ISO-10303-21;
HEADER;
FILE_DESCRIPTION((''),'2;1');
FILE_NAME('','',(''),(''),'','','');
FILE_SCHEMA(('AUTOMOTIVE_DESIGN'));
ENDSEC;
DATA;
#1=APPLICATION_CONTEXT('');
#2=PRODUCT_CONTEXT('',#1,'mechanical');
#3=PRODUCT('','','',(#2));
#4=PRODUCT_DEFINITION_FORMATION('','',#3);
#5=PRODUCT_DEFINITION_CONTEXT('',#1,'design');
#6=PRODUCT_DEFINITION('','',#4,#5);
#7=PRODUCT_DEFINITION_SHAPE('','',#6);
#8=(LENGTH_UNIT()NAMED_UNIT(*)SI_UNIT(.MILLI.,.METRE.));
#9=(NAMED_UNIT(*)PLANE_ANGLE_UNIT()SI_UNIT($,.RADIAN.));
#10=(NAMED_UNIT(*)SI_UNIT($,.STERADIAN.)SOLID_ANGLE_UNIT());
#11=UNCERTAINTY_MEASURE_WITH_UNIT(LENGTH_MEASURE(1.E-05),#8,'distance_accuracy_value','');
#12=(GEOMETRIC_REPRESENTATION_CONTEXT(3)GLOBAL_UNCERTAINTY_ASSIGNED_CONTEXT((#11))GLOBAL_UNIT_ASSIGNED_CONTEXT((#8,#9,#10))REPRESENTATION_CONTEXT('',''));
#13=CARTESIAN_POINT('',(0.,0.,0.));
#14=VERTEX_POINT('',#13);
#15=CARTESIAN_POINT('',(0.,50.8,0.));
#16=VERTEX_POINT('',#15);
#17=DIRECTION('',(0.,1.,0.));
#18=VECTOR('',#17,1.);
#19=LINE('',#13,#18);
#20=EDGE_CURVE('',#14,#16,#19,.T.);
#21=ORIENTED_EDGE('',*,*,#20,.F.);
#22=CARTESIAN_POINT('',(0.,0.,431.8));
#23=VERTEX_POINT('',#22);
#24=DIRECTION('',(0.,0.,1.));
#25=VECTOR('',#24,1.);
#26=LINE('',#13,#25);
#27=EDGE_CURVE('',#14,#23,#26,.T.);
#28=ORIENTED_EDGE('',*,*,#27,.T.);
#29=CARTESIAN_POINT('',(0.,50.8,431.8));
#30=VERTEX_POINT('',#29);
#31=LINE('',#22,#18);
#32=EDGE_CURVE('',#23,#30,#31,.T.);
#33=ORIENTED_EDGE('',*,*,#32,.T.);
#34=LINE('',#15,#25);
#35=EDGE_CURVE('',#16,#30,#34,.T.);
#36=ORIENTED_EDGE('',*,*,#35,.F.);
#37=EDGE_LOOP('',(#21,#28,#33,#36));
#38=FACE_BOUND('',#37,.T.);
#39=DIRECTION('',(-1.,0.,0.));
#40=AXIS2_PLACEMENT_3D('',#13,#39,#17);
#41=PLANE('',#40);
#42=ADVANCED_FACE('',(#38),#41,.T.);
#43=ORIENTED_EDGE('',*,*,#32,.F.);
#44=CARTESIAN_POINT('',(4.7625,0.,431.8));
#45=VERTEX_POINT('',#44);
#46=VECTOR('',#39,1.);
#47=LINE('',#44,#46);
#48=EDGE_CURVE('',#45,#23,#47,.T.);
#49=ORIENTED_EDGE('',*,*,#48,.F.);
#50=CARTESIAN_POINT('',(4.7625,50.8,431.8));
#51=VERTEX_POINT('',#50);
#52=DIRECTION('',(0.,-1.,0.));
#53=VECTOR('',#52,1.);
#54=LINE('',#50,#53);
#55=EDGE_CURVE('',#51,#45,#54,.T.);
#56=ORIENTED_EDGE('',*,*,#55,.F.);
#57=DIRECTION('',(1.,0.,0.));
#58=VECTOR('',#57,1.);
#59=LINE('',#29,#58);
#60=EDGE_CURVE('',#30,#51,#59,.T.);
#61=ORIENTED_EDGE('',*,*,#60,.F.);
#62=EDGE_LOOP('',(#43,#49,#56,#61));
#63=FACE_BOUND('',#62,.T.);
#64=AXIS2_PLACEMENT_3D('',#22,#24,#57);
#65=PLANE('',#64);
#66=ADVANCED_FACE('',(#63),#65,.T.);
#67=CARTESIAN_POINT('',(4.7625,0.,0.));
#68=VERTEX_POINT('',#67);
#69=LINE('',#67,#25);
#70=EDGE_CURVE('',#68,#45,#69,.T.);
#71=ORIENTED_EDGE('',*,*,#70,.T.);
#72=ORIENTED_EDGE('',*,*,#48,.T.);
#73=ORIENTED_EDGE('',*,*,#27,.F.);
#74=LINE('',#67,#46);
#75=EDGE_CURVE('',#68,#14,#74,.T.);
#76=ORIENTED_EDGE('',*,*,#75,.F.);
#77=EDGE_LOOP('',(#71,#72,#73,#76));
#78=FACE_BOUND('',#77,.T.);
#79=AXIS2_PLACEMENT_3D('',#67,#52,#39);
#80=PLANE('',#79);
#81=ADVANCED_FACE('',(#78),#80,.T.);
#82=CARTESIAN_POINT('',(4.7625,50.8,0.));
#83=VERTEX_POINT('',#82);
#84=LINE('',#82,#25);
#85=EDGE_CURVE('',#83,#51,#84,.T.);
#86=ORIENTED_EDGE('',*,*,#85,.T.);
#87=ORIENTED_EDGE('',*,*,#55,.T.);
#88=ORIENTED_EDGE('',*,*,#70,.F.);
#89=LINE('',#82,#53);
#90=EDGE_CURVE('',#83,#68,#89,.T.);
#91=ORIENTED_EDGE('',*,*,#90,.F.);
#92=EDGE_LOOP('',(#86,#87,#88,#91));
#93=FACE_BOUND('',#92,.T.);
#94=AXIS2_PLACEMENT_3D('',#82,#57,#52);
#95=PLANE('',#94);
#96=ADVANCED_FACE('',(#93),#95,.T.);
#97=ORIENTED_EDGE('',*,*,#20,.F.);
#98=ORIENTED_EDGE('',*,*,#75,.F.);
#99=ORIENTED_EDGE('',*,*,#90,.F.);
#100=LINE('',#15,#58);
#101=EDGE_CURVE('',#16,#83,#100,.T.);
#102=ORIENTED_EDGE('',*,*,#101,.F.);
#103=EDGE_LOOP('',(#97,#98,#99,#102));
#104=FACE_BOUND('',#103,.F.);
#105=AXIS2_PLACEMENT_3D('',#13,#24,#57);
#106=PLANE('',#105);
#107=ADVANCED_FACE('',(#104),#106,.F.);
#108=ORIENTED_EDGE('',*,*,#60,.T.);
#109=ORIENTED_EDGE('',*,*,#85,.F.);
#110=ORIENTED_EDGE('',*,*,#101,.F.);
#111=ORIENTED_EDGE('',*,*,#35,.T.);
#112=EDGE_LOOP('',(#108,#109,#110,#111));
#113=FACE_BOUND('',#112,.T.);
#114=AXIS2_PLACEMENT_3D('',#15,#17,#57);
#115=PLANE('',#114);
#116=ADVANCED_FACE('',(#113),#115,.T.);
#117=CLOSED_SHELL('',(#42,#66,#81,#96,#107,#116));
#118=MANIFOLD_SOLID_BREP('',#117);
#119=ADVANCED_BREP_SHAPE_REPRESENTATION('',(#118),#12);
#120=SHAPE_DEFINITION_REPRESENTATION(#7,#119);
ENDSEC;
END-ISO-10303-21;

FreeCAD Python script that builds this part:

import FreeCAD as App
import Part
import Sketcher

V = App.Vector
Q = App.Units.Quantity

doc = App.newDocument("Part")
params = doc.addObject("Spreadsheet::Sheet", "Params")
for row, (alias, value) in enumerate([
    ("sketch1_height", "2 in"),
    ("sketch1_width", "0.1875 in"),
    ("pad1_length", "17 in"),
], start=1):
    params.set(f"A{row}", alias)
    params.set(f"B{row}", "=" + value)
    params.setAlias(f"B{row}", alias)

body = doc.addObject("PartDesign::Body", "Body")

# Sketch on XY plane
sketch1 = body.newObject("Sketcher::SketchObject", "Sketch")
sketch1.AttachmentSupport = (doc.getObject("XY_Plane"), [""])
sketch1.MapMode = "FlatFace"
sketch1.addGeometry(Part.LineSegment(V(4.8, 50.8, 0), V(0, 50.8, 0)), False)
sketch1.addGeometry(Part.LineSegment(V(0, 50.8, 0), V(0, 0, 0)), False)
sketch1.addGeometry(Part.LineSegment(V(0, 0, 0), V(4.8, 0, 0)), False)
sketch1.addGeometry(Part.LineSegment(V(4.8, 0, 0), V(4.8, 50.8, 0)), False)
sketch1.addConstraint(Sketcher.Constraint("Coincident", 0, 2, 1, 1))
sketch1.addConstraint(Sketcher.Constraint("Coincident", 1, 2, 2, 1))
sketch1.addConstraint(Sketcher.Constraint("Coincident", 2, 2, 3, 1))
sketch1.addConstraint(Sketcher.Constraint("Coincident", 3, 2, 0, 1))
sketch1.addConstraint(Sketcher.Constraint("Horizontal", 0))
sketch1.addConstraint(Sketcher.Constraint("Vertical", 1))
sketch1.addConstraint(Sketcher.Constraint("Horizontal", 2))
sketch1.addConstraint(Sketcher.Constraint("Vertical", 3))
sketch1.addConstraint(Sketcher.Constraint("Coincident", 1, 2, -1, 1))
sketch1.addConstraint(Sketcher.Constraint("DistanceY", 1, 2, 1, 1, Q("2 in")))
sketch1.addConstraint(Sketcher.Constraint("DistanceX", 0, 2, 0, 1, Q("0.1875 in")))
sketch1.setExpression("Constraints[9]", "Params.sketch1_height")
sketch1.setExpression("Constraints[10]", "Params.sketch1_width")
pad1 = body.newObject("PartDesign::Pad", "Pad")
pad1.Profile = sketch1
pad1.setExpression("Length", "Params.pad1_length")

doc.recompute()
